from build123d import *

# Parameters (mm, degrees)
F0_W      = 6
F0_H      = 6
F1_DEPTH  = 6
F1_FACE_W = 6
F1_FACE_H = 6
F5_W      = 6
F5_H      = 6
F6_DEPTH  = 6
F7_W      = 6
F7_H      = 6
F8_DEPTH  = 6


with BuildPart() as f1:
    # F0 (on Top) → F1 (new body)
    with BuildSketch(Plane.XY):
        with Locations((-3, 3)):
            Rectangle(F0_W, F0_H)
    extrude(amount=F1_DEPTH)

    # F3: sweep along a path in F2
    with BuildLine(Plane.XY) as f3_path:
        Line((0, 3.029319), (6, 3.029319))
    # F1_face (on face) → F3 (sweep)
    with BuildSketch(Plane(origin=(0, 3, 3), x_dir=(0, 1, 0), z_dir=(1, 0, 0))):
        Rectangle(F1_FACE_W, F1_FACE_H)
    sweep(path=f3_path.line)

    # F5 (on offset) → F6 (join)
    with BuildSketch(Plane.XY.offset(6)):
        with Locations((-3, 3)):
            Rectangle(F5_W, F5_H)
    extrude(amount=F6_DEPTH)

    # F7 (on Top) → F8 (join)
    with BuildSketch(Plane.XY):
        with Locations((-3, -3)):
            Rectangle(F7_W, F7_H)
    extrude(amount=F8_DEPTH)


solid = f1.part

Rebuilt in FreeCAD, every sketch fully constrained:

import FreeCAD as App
import Part
import Sketcher

V = App.Vector
Q = App.Units.Quantity

doc = App.newDocument("Part")
body = doc.addObject("PartDesign::Body", "Body")

# Sketch on XY plane
sketch1 = body.newObject("Sketcher::SketchObject", "Sketch")
sketch1.AttachmentSupport = (doc.getObject("XY_Plane"), [""])
sketch1.MapMode = "FlatFace"
sketch1.addGeometry(Part.LineSegment(V(-6, 6, 0), V(-6, 0, 0)), False)
sketch1.addGeometry(Part.LineSegment(V(-6, 0, 0), V(0, 0, 0)), False)
sketch1.addGeometry(Part.LineSegment(V(0, 0, 0), V(0, 6, 0)), False)
sketch1.addGeometry(Part.LineSegment(V(0, 6, 0), V(-6, 6, 0)), False)
sketch1.addConstraint(Sketcher.Constraint("Coincident", 0, 2, 1, 1))
sketch1.addConstraint(Sketcher.Constraint("Coincident", 1, 2, 2, 1))
sketch1.addConstraint(Sketcher.Constraint("Coincident", 2, 2, 3, 1))
sketch1.addConstraint(Sketcher.Constraint("Coincident", 3, 2, 0, 1))
sketch1.addConstraint(Sketcher.Constraint("Vertical", 0))
sketch1.addConstraint(Sketcher.Constraint("Horizontal", 1))
sketch1.addConstraint(Sketcher.Constraint("Vertical", 2))
sketch1.addConstraint(Sketcher.Constraint("Horizontal", 3))
sketch1.addConstraint(Sketcher.Constraint("Coincident", 1, 2, -1, 1))
sketch1.addConstraint(Sketcher.Constraint("Equal", 3, 0))
sketch1.addConstraint(Sketcher.Constraint("DistanceX", 1, 1, 1, 2, Q("6 mm")))
pad1 = body.newObject("PartDesign::Pad", "Pad")
pad1.Profile = sketch1
pad1.Length = 6

# Sketch on YZ plane
sketch2 = body.newObject("Sketcher::SketchObject", "Sketch001")
sketch2.AttachmentSupport = (doc.getObject("YZ_Plane"), [""])
sketch2.MapMode = "FlatFace"
sketch2.addGeometry(Part.LineSegment(V(0, 6, 0), V(0, 0, 0)), False)
sketch2.addGeometry(Part.LineSegment(V(0, 0, 0), V(6, 0, 0)), False)
sketch2.addGeometry(Part.LineSegment(V(6, 0, 0), V(6, 6, 0)), False)
sketch2.addGeometry(Part.LineSegment(V(6, 6, 0), V(0, 6, 0)), False)
sketch2.addConstraint(Sketcher.Constraint("Coincident", 0, 2, 1, 1))
sketch2.addConstraint(Sketcher.Constraint("Coincident", 1, 2, 2, 1))
sketch2.addConstraint(Sketcher.Constraint("Coincident", 2, 2, 3, 1))
sketch2.addConstraint(Sketcher.Constraint("Coincident", 3, 2, 0, 1))
sketch2.addConstraint(Sketcher.Constraint("Vertical", 0))
sketch2.addConstraint(Sketcher.Constraint("Horizontal", 1))
sketch2.addConstraint(Sketcher.Constraint("Vertical", 2))
sketch2.addConstraint(Sketcher.Constraint("Horizontal", 3))
sketch2.addConstraint(Sketcher.Constraint("Coincident", 0, 2, -1, 1))
sketch2.addConstraint(Sketcher.Constraint("Equal", 3, 0))
sketch2.addConstraint(Sketcher.Constraint("DistanceX", 1, 1, 1, 2, Q("6 mm")))

# Sketch on XY plane
sketch3 = body.newObject("Sketcher::SketchObject", "Sketch002")
sketch3.AttachmentSupport = (doc.getObject("XY_Plane"), [""])
sketch3.MapMode = "FlatFace"
sketch3.addGeometry(Part.LineSegment(V(0, 3.029319, 0), V(6, 3.029319, 0)), False)
sketch3.addConstraint(Sketcher.Constraint("Horizontal", 0))
sketch3.addConstraint(Sketcher.Constraint("PointOnObject", 0, 1, -2))
sketch3.addConstraint(Sketcher.Constraint("DistanceX", 0, 1, 0, 2, Q("6 mm")))
sketch3.addConstraint(Sketcher.Constraint("DistanceY", -1, 1, 0, 1, Q("3.029319 mm")))
doc.recompute()

additivepipe = body.newObject("PartDesign::AdditivePipe", "AdditivePipe")
additivepipe.Profile = sketch2
additivepipe.Spine = (sketch3, ["Edge1"])

# Sketch on XY plane
sketch4 = body.newObject("Sketcher::SketchObject", "Sketch003")
sketch4.AttachmentSupport = (doc.getObject("XY_Plane"), [""])
sketch4.MapMode = "FlatFace"
sketch4.AttachmentOffset = App.Placement(V(0, 0, 6), App.Rotation())
sketch4.addGeometry(Part.LineSegment(V(-6, 6, 0), V(-6, 0, 0)), False)
sketch4.addGeometry(Part.LineSegment(V(-6, 0, 0), V(0, 0, 0)), False)
sketch4.addGeometry(Part.LineSegment(V(0, 0, 0), V(0, 6, 0)), False)
sketch4.addGeometry(Part.LineSegment(V(0, 6, 0), V(-6, 6, 0)), False)
sketch4.addConstraint(Sketcher.Constraint("Coincident", 0, 2, 1, 1))
sketch4.addConstraint(Sketcher.Constraint("Coincident", 1, 2, 2, 1))
sketch4.addConstraint(Sketcher.Constraint("Coincident", 2, 2, 3, 1))
sketch4.addConstraint(Sketcher.Constraint("Coincident", 3, 2, 0, 1))
sketch4.addConstraint(Sketcher.Constraint("Vertical", 0))
sketch4.addConstraint(Sketcher.Constraint("Horizontal", 1))
sketch4.addConstraint(Sketcher.Constraint("Vertical", 2))
sketch4.addConstraint(Sketcher.Constraint("Horizontal", 3))
sketch4.addConstraint(Sketcher.Constraint("Coincident", 1, 2, -1, 1))
sketch4.addConstraint(Sketcher.Constraint("Equal", 3, 0))
sketch4.addConstraint(Sketcher.Constraint("DistanceX", 1, 1, 1, 2, Q("6 mm")))
pad2 = body.newObject("PartDesign::Pad", "Pad001")
pad2.Profile = sketch4
pad2.Length = 6

# Sketch on XY plane
sketch5 = body.newObject("Sketcher::SketchObject", "Sketch004")
sketch5.AttachmentSupport = (doc.getObject("XY_Plane"), [""])
sketch5.MapMode = "FlatFace"
sketch5.addGeometry(Part.LineSegment(V(-6, 0, 0), V(-6, -6, 0)), False)
sketch5.addGeometry(Part.LineSegment(V(-6, -6, 0), V(0, -6, 0)), False)
sketch5.addGeometry(Part.LineSegment(V(0, -6, 0), V(0, 0, 0)), False)
sketch5.addGeometry(Part.LineSegment(V(0, 0, 0), V(-6, 0, 0)), False)
sketch5.addConstraint(Sketcher.Constraint("Coincident", 0, 2, 1, 1))
sketch5.addConstraint(Sketcher.Constraint("Coincident", 1, 2, 2, 1))
sketch5.addConstraint(Sketcher.Constraint("Coincident", 2, 2, 3, 1))
sketch5.addConstraint(Sketcher.Constraint("Coincident", 3, 2, 0, 1))
sketch5.addConstraint(Sketcher.Constraint("Vertical", 0))
sketch5.addConstraint(Sketcher.Constraint("Horizontal", 1))
sketch5.addConstraint(Sketcher.Constraint("Vertical", 2))
sketch5.addConstraint(Sketcher.Constraint("Horizontal", 3))
sketch5.addConstraint(Sketcher.Constraint("Coincident", 2, 2, -1, 1))
sketch5.addConstraint(Sketcher.Constraint("Equal", 3, 0))
sketch5.addConstraint(Sketcher.Constraint("DistanceX", 1, 1, 1, 2, Q("6 mm")))
pad3 = body.newObject("PartDesign::Pad", "Pad002")
pad3.Profile = sketch5
pad3.Length = 6

doc.recompute()
